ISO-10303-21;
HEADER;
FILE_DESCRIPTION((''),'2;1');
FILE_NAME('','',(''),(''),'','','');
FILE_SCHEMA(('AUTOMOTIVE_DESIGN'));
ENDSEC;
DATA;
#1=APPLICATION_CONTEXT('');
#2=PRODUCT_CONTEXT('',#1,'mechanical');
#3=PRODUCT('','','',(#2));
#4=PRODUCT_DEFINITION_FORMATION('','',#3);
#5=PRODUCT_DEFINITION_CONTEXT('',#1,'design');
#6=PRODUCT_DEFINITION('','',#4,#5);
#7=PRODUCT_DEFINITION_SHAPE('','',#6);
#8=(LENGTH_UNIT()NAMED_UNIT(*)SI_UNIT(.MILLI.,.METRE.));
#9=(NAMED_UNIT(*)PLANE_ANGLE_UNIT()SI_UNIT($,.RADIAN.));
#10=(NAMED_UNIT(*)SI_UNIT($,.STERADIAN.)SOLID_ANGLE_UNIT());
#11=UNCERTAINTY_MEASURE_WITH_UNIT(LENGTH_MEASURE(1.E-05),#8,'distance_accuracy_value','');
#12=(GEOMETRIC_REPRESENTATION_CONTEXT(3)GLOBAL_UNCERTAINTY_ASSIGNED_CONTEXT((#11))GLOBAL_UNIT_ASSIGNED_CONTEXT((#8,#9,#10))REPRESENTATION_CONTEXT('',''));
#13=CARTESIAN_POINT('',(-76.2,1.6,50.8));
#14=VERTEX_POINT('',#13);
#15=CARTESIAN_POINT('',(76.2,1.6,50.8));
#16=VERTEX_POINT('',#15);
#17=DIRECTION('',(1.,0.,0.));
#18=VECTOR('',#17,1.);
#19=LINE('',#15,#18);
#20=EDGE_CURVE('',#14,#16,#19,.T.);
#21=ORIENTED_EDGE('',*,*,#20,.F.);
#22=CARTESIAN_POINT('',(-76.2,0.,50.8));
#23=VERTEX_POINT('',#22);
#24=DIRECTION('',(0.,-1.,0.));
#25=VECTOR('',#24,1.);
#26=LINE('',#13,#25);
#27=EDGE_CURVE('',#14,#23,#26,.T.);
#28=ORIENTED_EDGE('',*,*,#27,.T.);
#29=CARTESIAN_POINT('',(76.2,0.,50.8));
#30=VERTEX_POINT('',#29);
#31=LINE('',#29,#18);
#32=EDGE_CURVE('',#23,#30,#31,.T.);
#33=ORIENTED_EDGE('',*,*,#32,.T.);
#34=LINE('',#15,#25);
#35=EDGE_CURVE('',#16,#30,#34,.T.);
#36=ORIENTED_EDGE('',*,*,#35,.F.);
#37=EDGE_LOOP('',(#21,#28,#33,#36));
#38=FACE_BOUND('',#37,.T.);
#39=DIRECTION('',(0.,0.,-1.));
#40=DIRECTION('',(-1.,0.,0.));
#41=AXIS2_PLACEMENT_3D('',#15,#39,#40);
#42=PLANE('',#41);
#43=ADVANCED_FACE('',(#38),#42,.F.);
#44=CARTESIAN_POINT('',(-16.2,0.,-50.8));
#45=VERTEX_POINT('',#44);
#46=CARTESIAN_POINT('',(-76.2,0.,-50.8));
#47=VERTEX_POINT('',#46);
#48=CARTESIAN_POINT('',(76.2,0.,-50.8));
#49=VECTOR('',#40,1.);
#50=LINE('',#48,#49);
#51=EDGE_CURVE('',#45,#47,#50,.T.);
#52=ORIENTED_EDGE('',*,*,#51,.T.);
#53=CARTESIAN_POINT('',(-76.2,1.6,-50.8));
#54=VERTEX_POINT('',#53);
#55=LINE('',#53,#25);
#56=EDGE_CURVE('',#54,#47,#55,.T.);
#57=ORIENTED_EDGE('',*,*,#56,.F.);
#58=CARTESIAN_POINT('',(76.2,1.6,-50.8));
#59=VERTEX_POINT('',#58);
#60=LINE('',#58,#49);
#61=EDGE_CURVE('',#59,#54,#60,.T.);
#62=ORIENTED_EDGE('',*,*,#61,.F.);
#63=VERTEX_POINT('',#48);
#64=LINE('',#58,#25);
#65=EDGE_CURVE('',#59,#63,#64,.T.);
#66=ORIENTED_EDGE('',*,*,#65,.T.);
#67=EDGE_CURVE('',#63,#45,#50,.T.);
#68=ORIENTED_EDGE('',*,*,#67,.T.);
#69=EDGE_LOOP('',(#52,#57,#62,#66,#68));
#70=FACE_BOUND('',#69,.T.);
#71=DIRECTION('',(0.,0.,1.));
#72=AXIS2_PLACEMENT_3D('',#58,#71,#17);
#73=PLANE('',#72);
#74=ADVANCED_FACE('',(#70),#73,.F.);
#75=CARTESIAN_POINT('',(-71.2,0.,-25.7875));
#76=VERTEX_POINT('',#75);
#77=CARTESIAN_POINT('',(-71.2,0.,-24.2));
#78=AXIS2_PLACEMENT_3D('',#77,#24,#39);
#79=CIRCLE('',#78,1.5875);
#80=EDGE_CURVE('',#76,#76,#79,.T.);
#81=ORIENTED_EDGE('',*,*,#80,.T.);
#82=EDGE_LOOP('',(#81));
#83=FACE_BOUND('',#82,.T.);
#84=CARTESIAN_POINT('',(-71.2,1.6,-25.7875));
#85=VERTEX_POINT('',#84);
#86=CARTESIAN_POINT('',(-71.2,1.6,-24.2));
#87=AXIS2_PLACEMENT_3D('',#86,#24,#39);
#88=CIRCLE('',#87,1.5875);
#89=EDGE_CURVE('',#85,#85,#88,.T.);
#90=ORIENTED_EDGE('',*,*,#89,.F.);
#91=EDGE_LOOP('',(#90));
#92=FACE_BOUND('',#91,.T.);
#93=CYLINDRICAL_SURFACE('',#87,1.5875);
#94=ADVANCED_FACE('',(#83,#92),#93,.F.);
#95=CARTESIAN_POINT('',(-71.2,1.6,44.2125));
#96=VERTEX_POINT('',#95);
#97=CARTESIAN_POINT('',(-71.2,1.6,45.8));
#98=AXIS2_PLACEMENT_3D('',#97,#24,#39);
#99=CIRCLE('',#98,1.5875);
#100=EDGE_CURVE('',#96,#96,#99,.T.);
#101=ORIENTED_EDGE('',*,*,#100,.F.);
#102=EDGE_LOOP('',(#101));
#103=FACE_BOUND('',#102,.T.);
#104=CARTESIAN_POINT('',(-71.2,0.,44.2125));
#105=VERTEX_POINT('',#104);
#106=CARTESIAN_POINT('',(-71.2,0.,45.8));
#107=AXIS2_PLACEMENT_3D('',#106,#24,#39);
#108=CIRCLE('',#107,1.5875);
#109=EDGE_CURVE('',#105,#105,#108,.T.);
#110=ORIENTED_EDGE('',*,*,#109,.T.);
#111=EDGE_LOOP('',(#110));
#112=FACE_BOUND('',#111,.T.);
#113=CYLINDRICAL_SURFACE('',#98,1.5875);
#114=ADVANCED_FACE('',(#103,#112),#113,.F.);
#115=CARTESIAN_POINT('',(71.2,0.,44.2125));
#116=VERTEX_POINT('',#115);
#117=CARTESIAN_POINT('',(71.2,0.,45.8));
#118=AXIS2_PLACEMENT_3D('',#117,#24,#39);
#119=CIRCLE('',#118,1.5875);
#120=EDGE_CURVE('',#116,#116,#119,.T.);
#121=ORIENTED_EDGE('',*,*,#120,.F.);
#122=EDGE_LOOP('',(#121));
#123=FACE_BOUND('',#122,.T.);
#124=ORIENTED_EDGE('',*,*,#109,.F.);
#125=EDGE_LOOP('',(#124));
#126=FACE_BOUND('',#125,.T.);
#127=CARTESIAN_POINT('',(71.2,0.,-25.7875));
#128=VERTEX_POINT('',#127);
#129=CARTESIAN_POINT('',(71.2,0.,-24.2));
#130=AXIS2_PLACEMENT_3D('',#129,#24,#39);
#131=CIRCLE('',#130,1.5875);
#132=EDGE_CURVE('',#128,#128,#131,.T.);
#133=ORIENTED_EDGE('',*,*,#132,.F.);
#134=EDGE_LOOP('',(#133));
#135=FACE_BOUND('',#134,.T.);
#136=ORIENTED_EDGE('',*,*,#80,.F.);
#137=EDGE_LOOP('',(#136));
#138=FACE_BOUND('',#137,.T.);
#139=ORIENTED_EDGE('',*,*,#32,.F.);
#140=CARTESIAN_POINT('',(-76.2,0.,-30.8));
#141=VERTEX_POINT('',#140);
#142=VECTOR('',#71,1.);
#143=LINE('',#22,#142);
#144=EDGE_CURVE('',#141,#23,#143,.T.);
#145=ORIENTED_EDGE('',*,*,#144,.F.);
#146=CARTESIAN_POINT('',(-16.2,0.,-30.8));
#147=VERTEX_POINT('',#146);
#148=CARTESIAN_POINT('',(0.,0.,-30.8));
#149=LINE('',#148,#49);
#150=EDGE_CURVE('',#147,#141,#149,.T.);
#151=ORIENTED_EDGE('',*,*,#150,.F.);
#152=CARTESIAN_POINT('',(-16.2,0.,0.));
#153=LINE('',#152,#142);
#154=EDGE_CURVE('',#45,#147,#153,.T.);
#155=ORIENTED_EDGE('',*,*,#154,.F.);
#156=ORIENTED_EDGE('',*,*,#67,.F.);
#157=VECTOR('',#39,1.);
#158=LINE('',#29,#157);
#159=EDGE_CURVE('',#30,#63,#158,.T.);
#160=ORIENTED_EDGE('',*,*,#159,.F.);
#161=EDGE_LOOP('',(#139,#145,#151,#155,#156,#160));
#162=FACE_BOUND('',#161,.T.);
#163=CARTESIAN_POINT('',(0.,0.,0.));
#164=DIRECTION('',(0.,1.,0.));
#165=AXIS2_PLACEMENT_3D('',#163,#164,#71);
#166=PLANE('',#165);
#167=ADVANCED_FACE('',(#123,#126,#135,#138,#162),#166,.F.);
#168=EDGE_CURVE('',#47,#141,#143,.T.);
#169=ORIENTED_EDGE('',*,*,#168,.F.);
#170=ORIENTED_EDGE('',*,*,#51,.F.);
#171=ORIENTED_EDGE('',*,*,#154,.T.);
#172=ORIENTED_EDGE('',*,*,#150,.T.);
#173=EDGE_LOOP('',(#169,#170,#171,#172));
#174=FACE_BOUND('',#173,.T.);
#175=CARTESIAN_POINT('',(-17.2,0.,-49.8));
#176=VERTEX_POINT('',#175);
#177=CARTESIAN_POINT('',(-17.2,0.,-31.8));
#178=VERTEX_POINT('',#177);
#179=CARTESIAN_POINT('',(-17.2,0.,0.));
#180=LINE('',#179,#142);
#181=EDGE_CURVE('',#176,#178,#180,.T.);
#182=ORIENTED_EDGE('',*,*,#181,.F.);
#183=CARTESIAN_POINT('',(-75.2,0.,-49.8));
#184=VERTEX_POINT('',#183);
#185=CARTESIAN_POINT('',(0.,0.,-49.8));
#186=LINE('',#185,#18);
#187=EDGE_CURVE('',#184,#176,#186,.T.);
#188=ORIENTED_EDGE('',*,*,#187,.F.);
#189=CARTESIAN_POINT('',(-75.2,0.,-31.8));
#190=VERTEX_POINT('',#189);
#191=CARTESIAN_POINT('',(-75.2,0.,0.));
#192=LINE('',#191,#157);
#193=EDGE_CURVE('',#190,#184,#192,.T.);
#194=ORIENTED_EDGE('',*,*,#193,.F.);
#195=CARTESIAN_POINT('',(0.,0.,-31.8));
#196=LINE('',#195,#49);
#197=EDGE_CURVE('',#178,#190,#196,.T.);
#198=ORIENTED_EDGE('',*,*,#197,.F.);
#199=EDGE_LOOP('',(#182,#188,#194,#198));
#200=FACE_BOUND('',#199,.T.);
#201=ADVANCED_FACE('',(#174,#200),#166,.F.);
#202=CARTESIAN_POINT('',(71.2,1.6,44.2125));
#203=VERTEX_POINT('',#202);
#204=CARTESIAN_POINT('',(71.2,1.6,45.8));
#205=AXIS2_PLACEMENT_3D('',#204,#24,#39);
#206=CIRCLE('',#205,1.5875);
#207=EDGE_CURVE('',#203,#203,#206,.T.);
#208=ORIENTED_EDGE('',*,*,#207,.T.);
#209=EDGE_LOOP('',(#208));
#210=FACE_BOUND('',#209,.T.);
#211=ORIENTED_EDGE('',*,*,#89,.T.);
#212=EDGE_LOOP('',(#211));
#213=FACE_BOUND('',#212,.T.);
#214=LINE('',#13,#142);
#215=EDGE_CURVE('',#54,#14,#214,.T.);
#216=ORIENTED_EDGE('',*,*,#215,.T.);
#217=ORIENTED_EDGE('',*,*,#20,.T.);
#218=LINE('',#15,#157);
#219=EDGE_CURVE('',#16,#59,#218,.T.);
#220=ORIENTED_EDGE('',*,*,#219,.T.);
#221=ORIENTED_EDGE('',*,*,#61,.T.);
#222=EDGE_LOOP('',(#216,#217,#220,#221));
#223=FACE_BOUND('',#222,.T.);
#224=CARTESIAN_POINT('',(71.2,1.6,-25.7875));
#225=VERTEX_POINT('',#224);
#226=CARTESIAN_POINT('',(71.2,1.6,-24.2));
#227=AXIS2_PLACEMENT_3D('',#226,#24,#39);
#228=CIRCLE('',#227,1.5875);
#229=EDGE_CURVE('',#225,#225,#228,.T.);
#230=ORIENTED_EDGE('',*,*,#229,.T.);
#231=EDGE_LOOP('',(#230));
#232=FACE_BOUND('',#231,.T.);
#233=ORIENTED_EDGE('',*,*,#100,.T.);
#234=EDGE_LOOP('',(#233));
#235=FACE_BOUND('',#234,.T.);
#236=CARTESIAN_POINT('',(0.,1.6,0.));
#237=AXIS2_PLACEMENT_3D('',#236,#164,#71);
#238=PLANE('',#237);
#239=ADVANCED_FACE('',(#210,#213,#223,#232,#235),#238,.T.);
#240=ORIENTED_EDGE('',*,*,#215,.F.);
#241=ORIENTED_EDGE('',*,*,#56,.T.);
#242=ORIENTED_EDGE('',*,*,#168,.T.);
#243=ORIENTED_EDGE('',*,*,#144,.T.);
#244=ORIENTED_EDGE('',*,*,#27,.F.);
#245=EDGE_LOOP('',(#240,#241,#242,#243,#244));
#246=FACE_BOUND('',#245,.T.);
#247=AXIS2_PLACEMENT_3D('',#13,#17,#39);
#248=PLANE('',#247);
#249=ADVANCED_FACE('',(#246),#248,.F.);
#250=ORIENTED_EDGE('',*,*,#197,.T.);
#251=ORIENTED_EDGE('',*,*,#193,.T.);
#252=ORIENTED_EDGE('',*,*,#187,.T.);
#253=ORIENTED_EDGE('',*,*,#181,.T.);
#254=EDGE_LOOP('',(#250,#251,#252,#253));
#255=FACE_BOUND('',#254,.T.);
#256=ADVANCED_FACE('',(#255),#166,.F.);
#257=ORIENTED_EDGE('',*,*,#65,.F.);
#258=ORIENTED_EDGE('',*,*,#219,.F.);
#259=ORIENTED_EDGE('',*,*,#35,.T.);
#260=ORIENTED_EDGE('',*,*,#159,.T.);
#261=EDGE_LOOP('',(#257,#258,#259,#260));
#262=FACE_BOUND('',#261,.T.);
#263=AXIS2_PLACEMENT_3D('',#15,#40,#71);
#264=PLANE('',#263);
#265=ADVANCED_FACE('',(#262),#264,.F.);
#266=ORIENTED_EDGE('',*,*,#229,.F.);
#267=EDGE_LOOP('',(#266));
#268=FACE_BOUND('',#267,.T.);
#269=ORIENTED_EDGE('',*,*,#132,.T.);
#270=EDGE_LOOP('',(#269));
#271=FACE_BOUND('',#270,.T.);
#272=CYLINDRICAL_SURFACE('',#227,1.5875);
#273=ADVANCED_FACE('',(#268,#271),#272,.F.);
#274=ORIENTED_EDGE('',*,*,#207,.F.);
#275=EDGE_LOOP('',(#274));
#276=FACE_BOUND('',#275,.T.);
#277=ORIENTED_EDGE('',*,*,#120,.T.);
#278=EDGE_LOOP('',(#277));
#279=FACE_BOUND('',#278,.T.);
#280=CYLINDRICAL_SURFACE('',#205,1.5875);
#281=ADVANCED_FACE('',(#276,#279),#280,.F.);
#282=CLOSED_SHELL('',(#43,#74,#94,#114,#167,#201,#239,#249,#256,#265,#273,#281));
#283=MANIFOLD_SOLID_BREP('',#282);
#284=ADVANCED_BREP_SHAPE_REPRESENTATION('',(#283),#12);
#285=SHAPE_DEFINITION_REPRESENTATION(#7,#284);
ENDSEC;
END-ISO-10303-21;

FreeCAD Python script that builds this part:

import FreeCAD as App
import Part
import Sketcher

V = App.Vector
Q = App.Units.Quantity

doc = App.newDocument("Part")
body = doc.addObject("PartDesign::Body", "Body")

sketch1 = body.newObject("Sketcher::SketchObject", "Sketch")
sketch1.AttachmentSupport = (doc.getObject("XZ_Plane"), [""])
sketch1.MapMode = "FlatFace"
sketch1.addGeometry(Part.LineSegment(V(-76.2, -50.8, 0), V(-76.2, 50.8, 0)), False)
sketch1.addGeometry(Part.LineSegment(V(-76.2, 50.8, 0), V(76.2, 50.8, 0)), False)
sketch1.addGeometry(Part.LineSegment(V(76.2, 50.8, 0), V(76.2, -50.8, 0)), False)
sketch1.addGeometry(Part.LineSegment(V(76.2, -50.8, 0), V(-76.2, -50.8, 0)), False)
sketch1.addConstraint(Sketcher.Constraint("Coincident", 0, 2, 1, 1))
sketch1.addConstraint(Sketcher.Constraint("Coincident", 1, 2, 2, 1))
sketch1.addConstraint(Sketcher.Constraint("Coincident", 2, 2, 3, 1))
sketch1.addConstraint(Sketcher.Constraint("Coincident", 3, 2, 0, 1))
sketch1.addConstraint(Sketcher.Constraint("Vertical", 0))
sketch1.addConstraint(Sketcher.Constraint("Horizontal", 1))
sketch1.addConstraint(Sketcher.Constraint("Vertical", 2))
sketch1.addConstraint(Sketcher.Constraint("Horizontal", 3))
sketch1.addConstraint(Sketcher.Constraint("Symmetric", 0, 2, 2, 2, -1, 1))
sketch1.addConstraint(Sketcher.Constraint("DistanceX", 1, 1, 1, 2, Q("6 in")))
sketch1.addConstraint(Sketcher.Constraint("DistanceY", 0, 1, 0, 2, Q("4 in")))
pad1 = body.newObject("PartDesign::Pad", "Pad")
pad1.Profile = sketch1
pad1.Length = 1.6
pad1.Reversed = True

sketch2 = body.newObject("Sketcher::SketchObject", "Sketch001")
sketch2.AttachmentSupport = (doc.getObject("XZ_Plane"), [""])
sketch2.MapMode = "FlatFace"
sketch2.addGeometry(Part.Circle(V(-71.2, 45.8, 0), V(0, 0, 1), 1.5875), False)
sketch2.addGeometry(Part.Circle(V(-71.2, -24.2, 0), V(0, 0, 1), 1.5875), False)
sketch2.addGeometry(Part.Circle(V(71.2, -24.2, 0), V(0, 0, 1), 1.5875), False)
sketch2.addGeometry(Part.Circle(V(71.2, 45.8, 0), V(0, 0, 1), 1.5875), False)
sketch2.addConstraint(Sketcher.Constraint("Equal", 0, 1))
sketch2.addConstraint(Sketcher.Constraint("Equal", 1, 2))
sketch2.addConstraint(Sketcher.Constraint("Equal", 2, 3))
sketch2.addConstraint(Sketcher.Constraint("Symmetric", 1, 3, 2, 3, -2))
sketch2.addConstraint(Sketcher.Constraint("Symmetric", 0, 3, 3, 3, -2))
sketch2.addConstraint(Sketcher.Constraint("Vertical", 0, 3, 1, 3))
sketch2.addConstraint(Sketcher.Constraint("Diameter", 0, Q("0.125 in")))
sketch2.addConstraint(Sketcher.Constraint("DistanceX", 0, 3, -1, 1, 71.2))
sketch2.addConstraint(Sketcher.Constraint("DistanceY", -1, 1, 0, 3, 45.8))
sketch2.addConstraint(Sketcher.Constraint("DistanceY", 1, 3, -1, 1, 24.2))
pocket1 = body.newObject("PartDesign::Pocket", "Pocket")
pocket1.Profile = sketch2
pocket1.Type = "ThroughAll"

doc.recompute()
